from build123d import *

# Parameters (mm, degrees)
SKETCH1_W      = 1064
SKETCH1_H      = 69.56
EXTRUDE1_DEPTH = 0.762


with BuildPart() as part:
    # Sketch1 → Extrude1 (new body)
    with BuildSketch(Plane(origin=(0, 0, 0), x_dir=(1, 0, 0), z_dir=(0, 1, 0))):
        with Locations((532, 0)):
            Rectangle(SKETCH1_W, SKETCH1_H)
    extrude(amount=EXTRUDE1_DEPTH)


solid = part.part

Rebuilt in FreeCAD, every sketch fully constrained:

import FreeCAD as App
import Part
import Sketcher
from FreeCAD import Vector
Q = App.Units.Quantity


def add_polygon(sketch, points):
    """Adds a closed chain of lines whose ends are joined by coincident constraints."""
    first, n = sketch.GeometryCount, len(points)
    for a, b in zip(points, points[1:] + points[:1]):
        sketch.addGeometry(Part.LineSegment(App.Vector(*a, 0), App.Vector(*b, 0)), False)
    for i in range(n):
        sketch.addConstraint(Sketcher.Constraint("Coincident", first + i, 2, first + (i + 1) % n, 1))

doc = App.newDocument("Part")
body = doc.addObject("PartDesign::Body", "Body")

sketch1 = body.newObject("Sketcher::SketchObject", "Sketch")
sketch1.AttachmentSupport = (doc.getObject("XZ_Plane"), [""])
sketch1.MapMode = "FlatFace"
add_polygon(sketch1, [(0, -35), (0, 35), (1064, 35), (1064, -35)])
sketch1.addConstraint(Sketcher.Constraint("Vertical", 0))
sketch1.addConstraint(Sketcher.Constraint("Horizontal", 1))
sketch1.addConstraint(Sketcher.Constraint("Vertical", 2))
sketch1.addConstraint(Sketcher.Constraint("Horizontal", 3))
sketch1.addConstraint(Sketcher.Constraint("Symmetric", 0, 2, 3, 2, -1, 1))
sketch1.addConstraint(Sketcher.Constraint("DistanceX", 1, 1, 1, 2, Q("1064 mm")))
sketch1.addConstraint(Sketcher.Constraint("DistanceY", 0, 1, 0, 2, Q("69.56 mm")))
pad1 = body.newObject("PartDesign::Pad", "Pad")
pad1.Profile = sketch1
pad1.Length = 0.762
pad1.Reversed = True

doc.recompute()
